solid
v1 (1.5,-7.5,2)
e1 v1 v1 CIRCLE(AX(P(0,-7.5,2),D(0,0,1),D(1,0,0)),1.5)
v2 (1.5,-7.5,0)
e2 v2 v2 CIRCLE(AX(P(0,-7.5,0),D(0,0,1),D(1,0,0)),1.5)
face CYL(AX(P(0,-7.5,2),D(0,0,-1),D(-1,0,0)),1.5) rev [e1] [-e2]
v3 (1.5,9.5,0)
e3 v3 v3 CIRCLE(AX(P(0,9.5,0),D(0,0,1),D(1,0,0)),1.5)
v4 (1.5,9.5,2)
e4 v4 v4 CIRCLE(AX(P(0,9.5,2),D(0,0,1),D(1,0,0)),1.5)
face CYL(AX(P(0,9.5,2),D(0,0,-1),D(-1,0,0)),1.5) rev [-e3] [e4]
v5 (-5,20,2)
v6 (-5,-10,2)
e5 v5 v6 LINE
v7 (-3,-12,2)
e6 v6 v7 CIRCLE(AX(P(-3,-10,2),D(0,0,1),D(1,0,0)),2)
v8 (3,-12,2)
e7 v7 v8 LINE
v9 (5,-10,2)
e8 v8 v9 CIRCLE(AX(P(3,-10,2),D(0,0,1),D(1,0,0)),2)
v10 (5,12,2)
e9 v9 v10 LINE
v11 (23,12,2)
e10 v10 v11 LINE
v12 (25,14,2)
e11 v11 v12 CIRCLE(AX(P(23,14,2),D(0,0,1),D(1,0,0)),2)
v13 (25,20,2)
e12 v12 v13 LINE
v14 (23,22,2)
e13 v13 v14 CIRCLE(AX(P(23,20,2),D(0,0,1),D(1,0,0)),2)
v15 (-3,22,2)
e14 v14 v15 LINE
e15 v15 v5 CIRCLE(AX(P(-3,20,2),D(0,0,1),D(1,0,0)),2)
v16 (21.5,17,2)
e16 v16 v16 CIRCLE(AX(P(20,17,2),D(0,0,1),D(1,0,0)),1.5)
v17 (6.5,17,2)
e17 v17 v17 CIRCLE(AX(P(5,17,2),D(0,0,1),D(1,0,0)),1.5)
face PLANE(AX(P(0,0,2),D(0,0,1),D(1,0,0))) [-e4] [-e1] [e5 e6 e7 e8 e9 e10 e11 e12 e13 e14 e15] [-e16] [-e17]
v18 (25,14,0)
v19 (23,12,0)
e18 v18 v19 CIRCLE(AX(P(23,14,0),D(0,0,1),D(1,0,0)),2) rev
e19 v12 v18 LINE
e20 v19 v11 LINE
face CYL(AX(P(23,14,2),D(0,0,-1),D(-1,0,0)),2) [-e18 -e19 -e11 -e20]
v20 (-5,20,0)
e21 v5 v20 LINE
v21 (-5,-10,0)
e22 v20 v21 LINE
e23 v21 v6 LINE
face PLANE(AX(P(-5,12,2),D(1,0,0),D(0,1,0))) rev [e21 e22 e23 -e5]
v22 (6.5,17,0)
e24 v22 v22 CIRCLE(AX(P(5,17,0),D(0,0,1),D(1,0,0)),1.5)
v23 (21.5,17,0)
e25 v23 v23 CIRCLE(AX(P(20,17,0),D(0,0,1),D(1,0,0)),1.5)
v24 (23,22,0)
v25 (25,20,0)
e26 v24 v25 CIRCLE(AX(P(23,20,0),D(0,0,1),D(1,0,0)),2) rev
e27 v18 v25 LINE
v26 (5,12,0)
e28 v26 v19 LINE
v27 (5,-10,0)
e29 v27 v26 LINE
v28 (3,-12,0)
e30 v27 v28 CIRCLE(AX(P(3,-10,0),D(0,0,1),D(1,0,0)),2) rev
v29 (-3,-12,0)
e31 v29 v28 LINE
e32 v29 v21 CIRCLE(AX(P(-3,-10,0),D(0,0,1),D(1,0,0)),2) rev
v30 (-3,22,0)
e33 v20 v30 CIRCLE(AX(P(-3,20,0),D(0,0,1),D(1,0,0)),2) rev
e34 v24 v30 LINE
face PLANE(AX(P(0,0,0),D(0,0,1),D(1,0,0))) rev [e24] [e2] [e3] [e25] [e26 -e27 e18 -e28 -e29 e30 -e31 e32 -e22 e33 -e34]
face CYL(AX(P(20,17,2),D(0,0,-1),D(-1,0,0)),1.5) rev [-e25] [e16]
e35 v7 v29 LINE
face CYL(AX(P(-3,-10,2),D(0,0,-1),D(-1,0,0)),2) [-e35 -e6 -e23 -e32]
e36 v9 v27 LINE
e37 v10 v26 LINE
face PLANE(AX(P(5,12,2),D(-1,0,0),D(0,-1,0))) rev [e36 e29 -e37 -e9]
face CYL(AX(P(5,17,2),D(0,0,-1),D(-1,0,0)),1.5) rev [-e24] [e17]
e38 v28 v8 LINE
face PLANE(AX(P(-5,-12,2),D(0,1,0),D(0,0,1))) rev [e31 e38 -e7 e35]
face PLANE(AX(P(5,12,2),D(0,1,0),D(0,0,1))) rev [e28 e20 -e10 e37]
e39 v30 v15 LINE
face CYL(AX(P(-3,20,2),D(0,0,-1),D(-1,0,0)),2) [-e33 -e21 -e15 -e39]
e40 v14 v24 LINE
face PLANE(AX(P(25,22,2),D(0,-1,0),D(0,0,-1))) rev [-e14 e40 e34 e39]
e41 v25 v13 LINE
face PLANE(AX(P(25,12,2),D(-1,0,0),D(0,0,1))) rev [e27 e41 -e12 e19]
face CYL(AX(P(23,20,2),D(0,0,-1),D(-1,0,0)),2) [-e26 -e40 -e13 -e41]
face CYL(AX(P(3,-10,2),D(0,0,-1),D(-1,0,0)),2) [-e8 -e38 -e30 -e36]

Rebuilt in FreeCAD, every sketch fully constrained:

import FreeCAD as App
import Part
import Sketcher

V = App.Vector
Q = App.Units.Quantity


def edges_at(feature, points):
    """Names of the edges that pass closest to the given points."""
    edges = feature.Shape.Edges
    near = lambda p: min(range(len(edges)), key=lambda i: edges[i].distToShape(Part.Vertex(*p))[0])
    return sorted({f"Edge{near(p) + 1}" for p in points})

doc = App.newDocument("Part")
body = doc.addObject("PartDesign::Body", "Body")

# Sketch on XY plane
sketch1 = body.newObject("Sketcher::SketchObject", "Sketch")
sketch1.AttachmentSupport = (doc.getObject("XY_Plane"), [""])
sketch1.MapMode = "FlatFace"
sketch1.addGeometry(Part.LineSegment(V(-5, -12, 0), V(5, -12, 0)), False)
sketch1.addGeometry(Part.LineSegment(V(5, -12, 0), V(5, 12, 0)), False)
sketch1.addGeometry(Part.LineSegment(V(5, 12, 0), V(25, 12, 0)), False)
sketch1.addGeometry(Part.LineSegment(V(25, 12, 0), V(25, 22, 0)), False)
sketch1.addGeometry(Part.LineSegment(V(25, 22, 0), V(-5, 22, 0)), False)
sketch1.addGeometry(Part.LineSegment(V(-5, 22, 0), V(-5, -12, 0)), False)
sketch1.addGeometry(Part.Circle(V(0, -7.5, 0), V(0, 0, 1), 1.5), False)
sketch1.addGeometry(Part.Circle(V(0, 9.5, 0), V(0, 0, 1), 1.5), False)
sketch1.addGeometry(Part.Circle(V(5, 17, 0), V(0, 0, 1), 1.5), False)
sketch1.addGeometry(Part.Circle(V(20, 17, 0), V(0, 0, 1), 1.5), False)
sketch1.addConstraint(Sketcher.Constraint("Coincident", 0, 2, 1, 1))
sketch1.addConstraint(Sketcher.Constraint("Coincident", 1, 2, 2, 1))
sketch1.addConstraint(Sketcher.Constraint("Coincident", 2, 2, 3, 1))
sketch1.addConstraint(Sketcher.Constraint("Coincident", 3, 2, 4, 1))
sketch1.addConstraint(Sketcher.Constraint("Coincident", 4, 2, 5, 1))
sketch1.addConstraint(Sketcher.Constraint("Coincident", 5, 2, 0, 1))
sketch1.addConstraint(Sketcher.Constraint("Horizontal", 0))
sketch1.addConstraint(Sketcher.Constraint("Vertical", 1))
sketch1.addConstraint(Sketcher.Constraint("Horizontal", 2))
sketch1.addConstraint(Sketcher.Constraint("Vertical", 3))
sketch1.addConstraint(Sketcher.Constraint("Horizontal", 4))
sketch1.addConstraint(Sketcher.Constraint("Vertical", 5))
sketch1.addConstraint(Sketcher.Constraint("Equal", 6, 7))
sketch1.addConstraint(Sketcher.Constraint("Equal", 7, 8))
sketch1.addConstraint(Sketcher.Constraint("Equal", 8, 9))
sketch1.addConstraint(Sketcher.Constraint("Symmetric", 1, 2, 5, 2, -1, 1))
sketch1.addConstraint(Sketcher.Constraint("PointOnObject", 6, 3, -2))
sketch1.addConstraint(Sketcher.Constraint("PointOnObject", 7, 3, -2))
sketch1.addConstraint(Sketcher.Constraint("Horizontal", 8, 3, 9, 3))
sketch1.addConstraint(Sketcher.Constraint("Vertical", 8, 3, 0, 2))
sketch1.addConstraint(Sketcher.Constraint("Equal", 0, 3))
sketch1.addConstraint(Sketcher.Constraint("Diameter", 6, Q("3 mm")))
sketch1.addConstraint(Sketcher.Constraint("DistanceX", 0, 1, 0, 2, Q("10 mm")))
sketch1.addConstraint(Sketcher.Constraint("DistanceX", 2, 1, 2, 2, Q("20 mm")))
sketch1.addConstraint(Sketcher.Constraint("DistanceY", 1, 1, 1, 2, Q("24 mm")))
sketch1.addConstraint(Sketcher.Constraint("DistanceY", -1, 1, 8, 3, Q("17 mm")))
sketch1.addConstraint(Sketcher.Constraint("DistanceX", -1, 1, 9, 3, Q("20 mm")))
sketch1.addConstraint(Sketcher.Constraint("DistanceY", 6, 3, 7, 3, Q("17 mm")))
sketch1.addConstraint(Sketcher.Constraint("DistanceY", 6, 3, -1, 1, Q("7.5 mm")))
pad1 = body.newObject("PartDesign::Pad", "Pad")
pad1.Profile = sketch1
pad1.Length = 2
doc.recompute()

fillet = body.newObject("PartDesign::Fillet", "Fillet")
fillet.Base = (pad1, edges_at(pad1, [
    (5, -12, 1),
    (-5, -12, 1),
    (-5, 22, 1),
    (25, 22, 1),
    (25, 12, 1),
]))
fillet.Radius = 2

doc.recompute()
